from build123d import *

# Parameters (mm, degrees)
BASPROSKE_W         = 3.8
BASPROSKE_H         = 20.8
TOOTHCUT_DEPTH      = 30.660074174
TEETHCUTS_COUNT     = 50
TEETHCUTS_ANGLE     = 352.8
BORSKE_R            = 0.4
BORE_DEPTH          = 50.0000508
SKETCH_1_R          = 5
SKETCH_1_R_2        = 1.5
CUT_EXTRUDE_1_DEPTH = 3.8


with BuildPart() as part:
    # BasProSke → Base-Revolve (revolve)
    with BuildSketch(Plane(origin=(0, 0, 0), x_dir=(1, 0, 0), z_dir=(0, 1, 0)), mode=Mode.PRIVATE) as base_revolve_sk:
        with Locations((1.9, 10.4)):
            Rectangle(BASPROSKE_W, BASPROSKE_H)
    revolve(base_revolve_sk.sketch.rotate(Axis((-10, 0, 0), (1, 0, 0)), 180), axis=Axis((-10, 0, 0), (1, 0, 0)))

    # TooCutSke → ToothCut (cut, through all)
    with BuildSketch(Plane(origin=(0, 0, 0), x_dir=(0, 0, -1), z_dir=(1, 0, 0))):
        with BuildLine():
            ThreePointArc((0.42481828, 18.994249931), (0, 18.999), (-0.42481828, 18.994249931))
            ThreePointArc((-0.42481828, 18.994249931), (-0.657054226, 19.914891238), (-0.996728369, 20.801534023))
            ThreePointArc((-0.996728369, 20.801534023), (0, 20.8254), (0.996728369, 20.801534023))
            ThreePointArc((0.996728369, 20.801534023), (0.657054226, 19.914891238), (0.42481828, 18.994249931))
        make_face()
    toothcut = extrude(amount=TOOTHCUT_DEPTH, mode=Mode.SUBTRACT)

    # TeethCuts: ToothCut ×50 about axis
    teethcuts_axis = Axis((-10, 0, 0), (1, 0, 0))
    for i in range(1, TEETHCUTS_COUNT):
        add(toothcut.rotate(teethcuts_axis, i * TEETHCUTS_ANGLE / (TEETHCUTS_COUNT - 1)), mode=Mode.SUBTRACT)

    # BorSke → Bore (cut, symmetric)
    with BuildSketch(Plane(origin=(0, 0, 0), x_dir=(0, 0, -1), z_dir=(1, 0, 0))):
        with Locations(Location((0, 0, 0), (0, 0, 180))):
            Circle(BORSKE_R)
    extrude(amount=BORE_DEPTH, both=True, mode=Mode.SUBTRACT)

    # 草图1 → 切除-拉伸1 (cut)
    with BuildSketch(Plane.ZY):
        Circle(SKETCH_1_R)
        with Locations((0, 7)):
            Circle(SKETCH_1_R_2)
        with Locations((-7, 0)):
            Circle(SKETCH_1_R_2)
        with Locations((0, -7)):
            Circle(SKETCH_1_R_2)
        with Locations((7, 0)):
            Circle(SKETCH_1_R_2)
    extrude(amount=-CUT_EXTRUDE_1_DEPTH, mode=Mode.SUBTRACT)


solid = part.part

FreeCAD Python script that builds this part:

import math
import FreeCAD as App
import Part
import Sketcher


def add_polygon(sketch, points):
    """Adds a closed chain of lines whose ends are joined by coincident constraints."""
    first, n = sketch.GeometryCount, len(points)
    for a, b in zip(points, points[1:] + points[:1]):
        sketch.addGeometry(Part.LineSegment(App.Vector(*a, 0), App.Vector(*b, 0)), False)
    for i in range(n):
        sketch.addConstraint(Sketcher.Constraint("Coincident", first + i, 2, first + (i + 1) % n, 1))

doc = App.newDocument("Part")
body = doc.addObject("PartDesign::Body", "Body")

# Sketch on XZ plane
sketch1 = doc.addObject("Sketcher::SketchObject", "Sketch")
body.addObject(sketch1)
sketch1.AttachmentSupport = (doc.XZ_Plane, [""])
sketch1.MapMode = "FlatFace"
add_polygon(sketch1, [(0, -20.8), (0, 0), (3.8, 0), (3.8, -20.8)])  # lines 0-3
sketch1.addConstraint([
    Sketcher.Constraint("Vertical", 0),
    Sketcher.Constraint("Horizontal", 1),
    Sketcher.Constraint("Vertical", 2),
    Sketcher.Constraint("Horizontal", 3),
    Sketcher.Constraint("Coincident", 0, 2, -1, 1),
    Sketcher.Constraint("DistanceX", 1, 1, 1, 2, 3.8),
    Sketcher.Constraint("DistanceY", 0, 1, 0, 2, 20.8),
])
revolution = doc.addObject("PartDesign::Revolution", "Revolution")
body.addObject(revolution)
revolution.Profile = sketch1
revolution.ReferenceAxis = (sketch1, ["H_Axis"])
revolution.Angle = 360

# Sketch on YZ plane
sketch2 = doc.addObject("Sketcher::SketchObject", "Sketch001")
body.addObject(sketch2)
sketch2.AttachmentSupport = (doc.YZ_Plane, [""])
sketch2.MapMode = "FlatFace"
sketch2.addGeometry([
    Part.ArcOfCircle(Part.Circle(App.Vector(-0.000001, 0, 0), App.Vector(0, 0, 1), 18.999001), math.radians(-1.281242), math.radians(1.281242)),
    Part.ArcOfCircle(Part.Circle(App.Vector(17.501279, -8.284274, 0), App.Vector(0, 0, 1), 8), math.radians(65.636014), math.radians(79.244321)),
    Part.ArcOfCircle(Part.Circle(App.Vector(0, 0, 0), App.Vector(0, 0, 1), 20.8254), math.radians(-2.743292), math.radians(2.743292)),
    Part.ArcOfCircle(Part.Circle(App.Vector(17.501279, 8.284274, 0), App.Vector(0, 0, 1), 8), math.radians(-79.244321), math.radians(-65.636014)),
], False)
sketch2.addConstraint([
    Sketcher.Constraint("Coincident", 0, 1, 1, 2),
    Sketcher.Constraint("Coincident", 1, 1, 2, 1),
    Sketcher.Constraint("Coincident", 2, 2, 3, 2),
    Sketcher.Constraint("Coincident", 3, 1, 0, 2),
    Sketcher.Constraint("Coincident", 0, 3, -1, 1),
    Sketcher.Constraint("Coincident", 2, 3, -1, 1),
    Sketcher.Constraint("Equal", 1, 3),
    Sketcher.Constraint("Symmetric", 1, 3, 3, 3, -1),
    Sketcher.Constraint("Radius", 1, 8.0),
    Sketcher.Constraint("Radius", 0, 18.999001),
    Sketcher.Constraint("Radius", 2, 20.8254),
    Sketcher.Constraint("DistanceY", 1, 1, 3, 3, 9.281002),
    Sketcher.Constraint("DistanceX", -1, 1, 1, 3, 17.501279),
])
pocket1 = doc.addObject("PartDesign::Pocket", "Pocket")
body.addObject(pocket1)
pocket1.Profile = sketch2
pocket1.Type = "ThroughAll"
pocket1.Reversed = True
doc.recompute()

polarpattern = doc.addObject("PartDesign::PolarPattern", "PolarPattern")
body.addObject(polarpattern)
polarpattern.Originals = [pocket1]
polarpattern.Axis = (doc.X_Axis, [""])
polarpattern.Angle = 360
polarpattern.Occurrences = 50
body.Tip = polarpattern

# Sketch on YZ plane
sketch3 = doc.addObject("Sketcher::SketchObject", "Sketch002")
body.addObject(sketch3)
sketch3.AttachmentSupport = (doc.YZ_Plane, [""])
sketch3.MapMode = "FlatFace"
sketch3.addGeometry(Part.Circle(App.Vector(0, 0, 0), App.Vector(0, 0, 1), 0.4), False)
sketch3.addConstraint([
    Sketcher.Constraint("Coincident", 0, 3, -1, 1),
    Sketcher.Constraint("Diameter", 0, 0.8),
])
pocket2 = doc.addObject("PartDesign::Pocket", "Pocket001")
body.addObject(pocket2)
pocket2.Profile = sketch3
pocket2.Length = 100.000102
pocket2.Midplane = True

# Sketch on YZ plane
sketch4 = doc.addObject("Sketcher::SketchObject", "Sketch003")
body.addObject(sketch4)
sketch4.AttachmentSupport = (doc.YZ_Plane, [""])
sketch4.MapMode = "FlatFace"
sketch4.addGeometry([
    Part.Circle(App.Vector(0, 0, 0), App.Vector(0, 0, 1), 5),  # 0
    Part.Circle(App.Vector(7, 0, 0), App.Vector(0, 0, 1), 1.5),  # 1
    Part.Circle(App.Vector(0, -7, 0), App.Vector(0, 0, 1), 1.5),  # 2
    Part.Circle(App.Vector(-7, 0, 0), App.Vector(0, 0, 1), 1.5),  # 3
    Part.Circle(App.Vector(0, 7, 0), App.Vector(0, 0, 1), 1.5),  # 4
], False)
sketch4.addConstraint([
    Sketcher.Constraint("Coincident", 0, 3, -1, 1),
    Sketcher.Constraint("Equal", 1, 2),
    Sketcher.Constraint("Equal", 2, 3),
    Sketcher.Constraint("Equal", 3, 4),
    Sketcher.Constraint("Symmetric", 1, 3, 3, 3, -1, 1),
    Sketcher.Constraint("Symmetric", 2, 3, 4, 3, -1, 1),
    Sketcher.Constraint("PointOnObject", 1, 3, -1),
    Sketcher.Constraint("PointOnObject", 2, 3, -2),
    Sketcher.Constraint("Diameter", 0, 10.0),
    Sketcher.Constraint("Diameter", 1, 3.0),
    Sketcher.Constraint("DistanceX", -1, 1, 1, 3, 7.0),
    Sketcher.Constraint("DistanceY", 2, 3, -1, 1, 7.0),
])
pocket3 = doc.addObject("PartDesign::Pocket", "Pocket002")
body.addObject(pocket3)
pocket3.Profile = sketch4
pocket3.Length = 3.8
pocket3.Reversed = True

doc.recompute()
